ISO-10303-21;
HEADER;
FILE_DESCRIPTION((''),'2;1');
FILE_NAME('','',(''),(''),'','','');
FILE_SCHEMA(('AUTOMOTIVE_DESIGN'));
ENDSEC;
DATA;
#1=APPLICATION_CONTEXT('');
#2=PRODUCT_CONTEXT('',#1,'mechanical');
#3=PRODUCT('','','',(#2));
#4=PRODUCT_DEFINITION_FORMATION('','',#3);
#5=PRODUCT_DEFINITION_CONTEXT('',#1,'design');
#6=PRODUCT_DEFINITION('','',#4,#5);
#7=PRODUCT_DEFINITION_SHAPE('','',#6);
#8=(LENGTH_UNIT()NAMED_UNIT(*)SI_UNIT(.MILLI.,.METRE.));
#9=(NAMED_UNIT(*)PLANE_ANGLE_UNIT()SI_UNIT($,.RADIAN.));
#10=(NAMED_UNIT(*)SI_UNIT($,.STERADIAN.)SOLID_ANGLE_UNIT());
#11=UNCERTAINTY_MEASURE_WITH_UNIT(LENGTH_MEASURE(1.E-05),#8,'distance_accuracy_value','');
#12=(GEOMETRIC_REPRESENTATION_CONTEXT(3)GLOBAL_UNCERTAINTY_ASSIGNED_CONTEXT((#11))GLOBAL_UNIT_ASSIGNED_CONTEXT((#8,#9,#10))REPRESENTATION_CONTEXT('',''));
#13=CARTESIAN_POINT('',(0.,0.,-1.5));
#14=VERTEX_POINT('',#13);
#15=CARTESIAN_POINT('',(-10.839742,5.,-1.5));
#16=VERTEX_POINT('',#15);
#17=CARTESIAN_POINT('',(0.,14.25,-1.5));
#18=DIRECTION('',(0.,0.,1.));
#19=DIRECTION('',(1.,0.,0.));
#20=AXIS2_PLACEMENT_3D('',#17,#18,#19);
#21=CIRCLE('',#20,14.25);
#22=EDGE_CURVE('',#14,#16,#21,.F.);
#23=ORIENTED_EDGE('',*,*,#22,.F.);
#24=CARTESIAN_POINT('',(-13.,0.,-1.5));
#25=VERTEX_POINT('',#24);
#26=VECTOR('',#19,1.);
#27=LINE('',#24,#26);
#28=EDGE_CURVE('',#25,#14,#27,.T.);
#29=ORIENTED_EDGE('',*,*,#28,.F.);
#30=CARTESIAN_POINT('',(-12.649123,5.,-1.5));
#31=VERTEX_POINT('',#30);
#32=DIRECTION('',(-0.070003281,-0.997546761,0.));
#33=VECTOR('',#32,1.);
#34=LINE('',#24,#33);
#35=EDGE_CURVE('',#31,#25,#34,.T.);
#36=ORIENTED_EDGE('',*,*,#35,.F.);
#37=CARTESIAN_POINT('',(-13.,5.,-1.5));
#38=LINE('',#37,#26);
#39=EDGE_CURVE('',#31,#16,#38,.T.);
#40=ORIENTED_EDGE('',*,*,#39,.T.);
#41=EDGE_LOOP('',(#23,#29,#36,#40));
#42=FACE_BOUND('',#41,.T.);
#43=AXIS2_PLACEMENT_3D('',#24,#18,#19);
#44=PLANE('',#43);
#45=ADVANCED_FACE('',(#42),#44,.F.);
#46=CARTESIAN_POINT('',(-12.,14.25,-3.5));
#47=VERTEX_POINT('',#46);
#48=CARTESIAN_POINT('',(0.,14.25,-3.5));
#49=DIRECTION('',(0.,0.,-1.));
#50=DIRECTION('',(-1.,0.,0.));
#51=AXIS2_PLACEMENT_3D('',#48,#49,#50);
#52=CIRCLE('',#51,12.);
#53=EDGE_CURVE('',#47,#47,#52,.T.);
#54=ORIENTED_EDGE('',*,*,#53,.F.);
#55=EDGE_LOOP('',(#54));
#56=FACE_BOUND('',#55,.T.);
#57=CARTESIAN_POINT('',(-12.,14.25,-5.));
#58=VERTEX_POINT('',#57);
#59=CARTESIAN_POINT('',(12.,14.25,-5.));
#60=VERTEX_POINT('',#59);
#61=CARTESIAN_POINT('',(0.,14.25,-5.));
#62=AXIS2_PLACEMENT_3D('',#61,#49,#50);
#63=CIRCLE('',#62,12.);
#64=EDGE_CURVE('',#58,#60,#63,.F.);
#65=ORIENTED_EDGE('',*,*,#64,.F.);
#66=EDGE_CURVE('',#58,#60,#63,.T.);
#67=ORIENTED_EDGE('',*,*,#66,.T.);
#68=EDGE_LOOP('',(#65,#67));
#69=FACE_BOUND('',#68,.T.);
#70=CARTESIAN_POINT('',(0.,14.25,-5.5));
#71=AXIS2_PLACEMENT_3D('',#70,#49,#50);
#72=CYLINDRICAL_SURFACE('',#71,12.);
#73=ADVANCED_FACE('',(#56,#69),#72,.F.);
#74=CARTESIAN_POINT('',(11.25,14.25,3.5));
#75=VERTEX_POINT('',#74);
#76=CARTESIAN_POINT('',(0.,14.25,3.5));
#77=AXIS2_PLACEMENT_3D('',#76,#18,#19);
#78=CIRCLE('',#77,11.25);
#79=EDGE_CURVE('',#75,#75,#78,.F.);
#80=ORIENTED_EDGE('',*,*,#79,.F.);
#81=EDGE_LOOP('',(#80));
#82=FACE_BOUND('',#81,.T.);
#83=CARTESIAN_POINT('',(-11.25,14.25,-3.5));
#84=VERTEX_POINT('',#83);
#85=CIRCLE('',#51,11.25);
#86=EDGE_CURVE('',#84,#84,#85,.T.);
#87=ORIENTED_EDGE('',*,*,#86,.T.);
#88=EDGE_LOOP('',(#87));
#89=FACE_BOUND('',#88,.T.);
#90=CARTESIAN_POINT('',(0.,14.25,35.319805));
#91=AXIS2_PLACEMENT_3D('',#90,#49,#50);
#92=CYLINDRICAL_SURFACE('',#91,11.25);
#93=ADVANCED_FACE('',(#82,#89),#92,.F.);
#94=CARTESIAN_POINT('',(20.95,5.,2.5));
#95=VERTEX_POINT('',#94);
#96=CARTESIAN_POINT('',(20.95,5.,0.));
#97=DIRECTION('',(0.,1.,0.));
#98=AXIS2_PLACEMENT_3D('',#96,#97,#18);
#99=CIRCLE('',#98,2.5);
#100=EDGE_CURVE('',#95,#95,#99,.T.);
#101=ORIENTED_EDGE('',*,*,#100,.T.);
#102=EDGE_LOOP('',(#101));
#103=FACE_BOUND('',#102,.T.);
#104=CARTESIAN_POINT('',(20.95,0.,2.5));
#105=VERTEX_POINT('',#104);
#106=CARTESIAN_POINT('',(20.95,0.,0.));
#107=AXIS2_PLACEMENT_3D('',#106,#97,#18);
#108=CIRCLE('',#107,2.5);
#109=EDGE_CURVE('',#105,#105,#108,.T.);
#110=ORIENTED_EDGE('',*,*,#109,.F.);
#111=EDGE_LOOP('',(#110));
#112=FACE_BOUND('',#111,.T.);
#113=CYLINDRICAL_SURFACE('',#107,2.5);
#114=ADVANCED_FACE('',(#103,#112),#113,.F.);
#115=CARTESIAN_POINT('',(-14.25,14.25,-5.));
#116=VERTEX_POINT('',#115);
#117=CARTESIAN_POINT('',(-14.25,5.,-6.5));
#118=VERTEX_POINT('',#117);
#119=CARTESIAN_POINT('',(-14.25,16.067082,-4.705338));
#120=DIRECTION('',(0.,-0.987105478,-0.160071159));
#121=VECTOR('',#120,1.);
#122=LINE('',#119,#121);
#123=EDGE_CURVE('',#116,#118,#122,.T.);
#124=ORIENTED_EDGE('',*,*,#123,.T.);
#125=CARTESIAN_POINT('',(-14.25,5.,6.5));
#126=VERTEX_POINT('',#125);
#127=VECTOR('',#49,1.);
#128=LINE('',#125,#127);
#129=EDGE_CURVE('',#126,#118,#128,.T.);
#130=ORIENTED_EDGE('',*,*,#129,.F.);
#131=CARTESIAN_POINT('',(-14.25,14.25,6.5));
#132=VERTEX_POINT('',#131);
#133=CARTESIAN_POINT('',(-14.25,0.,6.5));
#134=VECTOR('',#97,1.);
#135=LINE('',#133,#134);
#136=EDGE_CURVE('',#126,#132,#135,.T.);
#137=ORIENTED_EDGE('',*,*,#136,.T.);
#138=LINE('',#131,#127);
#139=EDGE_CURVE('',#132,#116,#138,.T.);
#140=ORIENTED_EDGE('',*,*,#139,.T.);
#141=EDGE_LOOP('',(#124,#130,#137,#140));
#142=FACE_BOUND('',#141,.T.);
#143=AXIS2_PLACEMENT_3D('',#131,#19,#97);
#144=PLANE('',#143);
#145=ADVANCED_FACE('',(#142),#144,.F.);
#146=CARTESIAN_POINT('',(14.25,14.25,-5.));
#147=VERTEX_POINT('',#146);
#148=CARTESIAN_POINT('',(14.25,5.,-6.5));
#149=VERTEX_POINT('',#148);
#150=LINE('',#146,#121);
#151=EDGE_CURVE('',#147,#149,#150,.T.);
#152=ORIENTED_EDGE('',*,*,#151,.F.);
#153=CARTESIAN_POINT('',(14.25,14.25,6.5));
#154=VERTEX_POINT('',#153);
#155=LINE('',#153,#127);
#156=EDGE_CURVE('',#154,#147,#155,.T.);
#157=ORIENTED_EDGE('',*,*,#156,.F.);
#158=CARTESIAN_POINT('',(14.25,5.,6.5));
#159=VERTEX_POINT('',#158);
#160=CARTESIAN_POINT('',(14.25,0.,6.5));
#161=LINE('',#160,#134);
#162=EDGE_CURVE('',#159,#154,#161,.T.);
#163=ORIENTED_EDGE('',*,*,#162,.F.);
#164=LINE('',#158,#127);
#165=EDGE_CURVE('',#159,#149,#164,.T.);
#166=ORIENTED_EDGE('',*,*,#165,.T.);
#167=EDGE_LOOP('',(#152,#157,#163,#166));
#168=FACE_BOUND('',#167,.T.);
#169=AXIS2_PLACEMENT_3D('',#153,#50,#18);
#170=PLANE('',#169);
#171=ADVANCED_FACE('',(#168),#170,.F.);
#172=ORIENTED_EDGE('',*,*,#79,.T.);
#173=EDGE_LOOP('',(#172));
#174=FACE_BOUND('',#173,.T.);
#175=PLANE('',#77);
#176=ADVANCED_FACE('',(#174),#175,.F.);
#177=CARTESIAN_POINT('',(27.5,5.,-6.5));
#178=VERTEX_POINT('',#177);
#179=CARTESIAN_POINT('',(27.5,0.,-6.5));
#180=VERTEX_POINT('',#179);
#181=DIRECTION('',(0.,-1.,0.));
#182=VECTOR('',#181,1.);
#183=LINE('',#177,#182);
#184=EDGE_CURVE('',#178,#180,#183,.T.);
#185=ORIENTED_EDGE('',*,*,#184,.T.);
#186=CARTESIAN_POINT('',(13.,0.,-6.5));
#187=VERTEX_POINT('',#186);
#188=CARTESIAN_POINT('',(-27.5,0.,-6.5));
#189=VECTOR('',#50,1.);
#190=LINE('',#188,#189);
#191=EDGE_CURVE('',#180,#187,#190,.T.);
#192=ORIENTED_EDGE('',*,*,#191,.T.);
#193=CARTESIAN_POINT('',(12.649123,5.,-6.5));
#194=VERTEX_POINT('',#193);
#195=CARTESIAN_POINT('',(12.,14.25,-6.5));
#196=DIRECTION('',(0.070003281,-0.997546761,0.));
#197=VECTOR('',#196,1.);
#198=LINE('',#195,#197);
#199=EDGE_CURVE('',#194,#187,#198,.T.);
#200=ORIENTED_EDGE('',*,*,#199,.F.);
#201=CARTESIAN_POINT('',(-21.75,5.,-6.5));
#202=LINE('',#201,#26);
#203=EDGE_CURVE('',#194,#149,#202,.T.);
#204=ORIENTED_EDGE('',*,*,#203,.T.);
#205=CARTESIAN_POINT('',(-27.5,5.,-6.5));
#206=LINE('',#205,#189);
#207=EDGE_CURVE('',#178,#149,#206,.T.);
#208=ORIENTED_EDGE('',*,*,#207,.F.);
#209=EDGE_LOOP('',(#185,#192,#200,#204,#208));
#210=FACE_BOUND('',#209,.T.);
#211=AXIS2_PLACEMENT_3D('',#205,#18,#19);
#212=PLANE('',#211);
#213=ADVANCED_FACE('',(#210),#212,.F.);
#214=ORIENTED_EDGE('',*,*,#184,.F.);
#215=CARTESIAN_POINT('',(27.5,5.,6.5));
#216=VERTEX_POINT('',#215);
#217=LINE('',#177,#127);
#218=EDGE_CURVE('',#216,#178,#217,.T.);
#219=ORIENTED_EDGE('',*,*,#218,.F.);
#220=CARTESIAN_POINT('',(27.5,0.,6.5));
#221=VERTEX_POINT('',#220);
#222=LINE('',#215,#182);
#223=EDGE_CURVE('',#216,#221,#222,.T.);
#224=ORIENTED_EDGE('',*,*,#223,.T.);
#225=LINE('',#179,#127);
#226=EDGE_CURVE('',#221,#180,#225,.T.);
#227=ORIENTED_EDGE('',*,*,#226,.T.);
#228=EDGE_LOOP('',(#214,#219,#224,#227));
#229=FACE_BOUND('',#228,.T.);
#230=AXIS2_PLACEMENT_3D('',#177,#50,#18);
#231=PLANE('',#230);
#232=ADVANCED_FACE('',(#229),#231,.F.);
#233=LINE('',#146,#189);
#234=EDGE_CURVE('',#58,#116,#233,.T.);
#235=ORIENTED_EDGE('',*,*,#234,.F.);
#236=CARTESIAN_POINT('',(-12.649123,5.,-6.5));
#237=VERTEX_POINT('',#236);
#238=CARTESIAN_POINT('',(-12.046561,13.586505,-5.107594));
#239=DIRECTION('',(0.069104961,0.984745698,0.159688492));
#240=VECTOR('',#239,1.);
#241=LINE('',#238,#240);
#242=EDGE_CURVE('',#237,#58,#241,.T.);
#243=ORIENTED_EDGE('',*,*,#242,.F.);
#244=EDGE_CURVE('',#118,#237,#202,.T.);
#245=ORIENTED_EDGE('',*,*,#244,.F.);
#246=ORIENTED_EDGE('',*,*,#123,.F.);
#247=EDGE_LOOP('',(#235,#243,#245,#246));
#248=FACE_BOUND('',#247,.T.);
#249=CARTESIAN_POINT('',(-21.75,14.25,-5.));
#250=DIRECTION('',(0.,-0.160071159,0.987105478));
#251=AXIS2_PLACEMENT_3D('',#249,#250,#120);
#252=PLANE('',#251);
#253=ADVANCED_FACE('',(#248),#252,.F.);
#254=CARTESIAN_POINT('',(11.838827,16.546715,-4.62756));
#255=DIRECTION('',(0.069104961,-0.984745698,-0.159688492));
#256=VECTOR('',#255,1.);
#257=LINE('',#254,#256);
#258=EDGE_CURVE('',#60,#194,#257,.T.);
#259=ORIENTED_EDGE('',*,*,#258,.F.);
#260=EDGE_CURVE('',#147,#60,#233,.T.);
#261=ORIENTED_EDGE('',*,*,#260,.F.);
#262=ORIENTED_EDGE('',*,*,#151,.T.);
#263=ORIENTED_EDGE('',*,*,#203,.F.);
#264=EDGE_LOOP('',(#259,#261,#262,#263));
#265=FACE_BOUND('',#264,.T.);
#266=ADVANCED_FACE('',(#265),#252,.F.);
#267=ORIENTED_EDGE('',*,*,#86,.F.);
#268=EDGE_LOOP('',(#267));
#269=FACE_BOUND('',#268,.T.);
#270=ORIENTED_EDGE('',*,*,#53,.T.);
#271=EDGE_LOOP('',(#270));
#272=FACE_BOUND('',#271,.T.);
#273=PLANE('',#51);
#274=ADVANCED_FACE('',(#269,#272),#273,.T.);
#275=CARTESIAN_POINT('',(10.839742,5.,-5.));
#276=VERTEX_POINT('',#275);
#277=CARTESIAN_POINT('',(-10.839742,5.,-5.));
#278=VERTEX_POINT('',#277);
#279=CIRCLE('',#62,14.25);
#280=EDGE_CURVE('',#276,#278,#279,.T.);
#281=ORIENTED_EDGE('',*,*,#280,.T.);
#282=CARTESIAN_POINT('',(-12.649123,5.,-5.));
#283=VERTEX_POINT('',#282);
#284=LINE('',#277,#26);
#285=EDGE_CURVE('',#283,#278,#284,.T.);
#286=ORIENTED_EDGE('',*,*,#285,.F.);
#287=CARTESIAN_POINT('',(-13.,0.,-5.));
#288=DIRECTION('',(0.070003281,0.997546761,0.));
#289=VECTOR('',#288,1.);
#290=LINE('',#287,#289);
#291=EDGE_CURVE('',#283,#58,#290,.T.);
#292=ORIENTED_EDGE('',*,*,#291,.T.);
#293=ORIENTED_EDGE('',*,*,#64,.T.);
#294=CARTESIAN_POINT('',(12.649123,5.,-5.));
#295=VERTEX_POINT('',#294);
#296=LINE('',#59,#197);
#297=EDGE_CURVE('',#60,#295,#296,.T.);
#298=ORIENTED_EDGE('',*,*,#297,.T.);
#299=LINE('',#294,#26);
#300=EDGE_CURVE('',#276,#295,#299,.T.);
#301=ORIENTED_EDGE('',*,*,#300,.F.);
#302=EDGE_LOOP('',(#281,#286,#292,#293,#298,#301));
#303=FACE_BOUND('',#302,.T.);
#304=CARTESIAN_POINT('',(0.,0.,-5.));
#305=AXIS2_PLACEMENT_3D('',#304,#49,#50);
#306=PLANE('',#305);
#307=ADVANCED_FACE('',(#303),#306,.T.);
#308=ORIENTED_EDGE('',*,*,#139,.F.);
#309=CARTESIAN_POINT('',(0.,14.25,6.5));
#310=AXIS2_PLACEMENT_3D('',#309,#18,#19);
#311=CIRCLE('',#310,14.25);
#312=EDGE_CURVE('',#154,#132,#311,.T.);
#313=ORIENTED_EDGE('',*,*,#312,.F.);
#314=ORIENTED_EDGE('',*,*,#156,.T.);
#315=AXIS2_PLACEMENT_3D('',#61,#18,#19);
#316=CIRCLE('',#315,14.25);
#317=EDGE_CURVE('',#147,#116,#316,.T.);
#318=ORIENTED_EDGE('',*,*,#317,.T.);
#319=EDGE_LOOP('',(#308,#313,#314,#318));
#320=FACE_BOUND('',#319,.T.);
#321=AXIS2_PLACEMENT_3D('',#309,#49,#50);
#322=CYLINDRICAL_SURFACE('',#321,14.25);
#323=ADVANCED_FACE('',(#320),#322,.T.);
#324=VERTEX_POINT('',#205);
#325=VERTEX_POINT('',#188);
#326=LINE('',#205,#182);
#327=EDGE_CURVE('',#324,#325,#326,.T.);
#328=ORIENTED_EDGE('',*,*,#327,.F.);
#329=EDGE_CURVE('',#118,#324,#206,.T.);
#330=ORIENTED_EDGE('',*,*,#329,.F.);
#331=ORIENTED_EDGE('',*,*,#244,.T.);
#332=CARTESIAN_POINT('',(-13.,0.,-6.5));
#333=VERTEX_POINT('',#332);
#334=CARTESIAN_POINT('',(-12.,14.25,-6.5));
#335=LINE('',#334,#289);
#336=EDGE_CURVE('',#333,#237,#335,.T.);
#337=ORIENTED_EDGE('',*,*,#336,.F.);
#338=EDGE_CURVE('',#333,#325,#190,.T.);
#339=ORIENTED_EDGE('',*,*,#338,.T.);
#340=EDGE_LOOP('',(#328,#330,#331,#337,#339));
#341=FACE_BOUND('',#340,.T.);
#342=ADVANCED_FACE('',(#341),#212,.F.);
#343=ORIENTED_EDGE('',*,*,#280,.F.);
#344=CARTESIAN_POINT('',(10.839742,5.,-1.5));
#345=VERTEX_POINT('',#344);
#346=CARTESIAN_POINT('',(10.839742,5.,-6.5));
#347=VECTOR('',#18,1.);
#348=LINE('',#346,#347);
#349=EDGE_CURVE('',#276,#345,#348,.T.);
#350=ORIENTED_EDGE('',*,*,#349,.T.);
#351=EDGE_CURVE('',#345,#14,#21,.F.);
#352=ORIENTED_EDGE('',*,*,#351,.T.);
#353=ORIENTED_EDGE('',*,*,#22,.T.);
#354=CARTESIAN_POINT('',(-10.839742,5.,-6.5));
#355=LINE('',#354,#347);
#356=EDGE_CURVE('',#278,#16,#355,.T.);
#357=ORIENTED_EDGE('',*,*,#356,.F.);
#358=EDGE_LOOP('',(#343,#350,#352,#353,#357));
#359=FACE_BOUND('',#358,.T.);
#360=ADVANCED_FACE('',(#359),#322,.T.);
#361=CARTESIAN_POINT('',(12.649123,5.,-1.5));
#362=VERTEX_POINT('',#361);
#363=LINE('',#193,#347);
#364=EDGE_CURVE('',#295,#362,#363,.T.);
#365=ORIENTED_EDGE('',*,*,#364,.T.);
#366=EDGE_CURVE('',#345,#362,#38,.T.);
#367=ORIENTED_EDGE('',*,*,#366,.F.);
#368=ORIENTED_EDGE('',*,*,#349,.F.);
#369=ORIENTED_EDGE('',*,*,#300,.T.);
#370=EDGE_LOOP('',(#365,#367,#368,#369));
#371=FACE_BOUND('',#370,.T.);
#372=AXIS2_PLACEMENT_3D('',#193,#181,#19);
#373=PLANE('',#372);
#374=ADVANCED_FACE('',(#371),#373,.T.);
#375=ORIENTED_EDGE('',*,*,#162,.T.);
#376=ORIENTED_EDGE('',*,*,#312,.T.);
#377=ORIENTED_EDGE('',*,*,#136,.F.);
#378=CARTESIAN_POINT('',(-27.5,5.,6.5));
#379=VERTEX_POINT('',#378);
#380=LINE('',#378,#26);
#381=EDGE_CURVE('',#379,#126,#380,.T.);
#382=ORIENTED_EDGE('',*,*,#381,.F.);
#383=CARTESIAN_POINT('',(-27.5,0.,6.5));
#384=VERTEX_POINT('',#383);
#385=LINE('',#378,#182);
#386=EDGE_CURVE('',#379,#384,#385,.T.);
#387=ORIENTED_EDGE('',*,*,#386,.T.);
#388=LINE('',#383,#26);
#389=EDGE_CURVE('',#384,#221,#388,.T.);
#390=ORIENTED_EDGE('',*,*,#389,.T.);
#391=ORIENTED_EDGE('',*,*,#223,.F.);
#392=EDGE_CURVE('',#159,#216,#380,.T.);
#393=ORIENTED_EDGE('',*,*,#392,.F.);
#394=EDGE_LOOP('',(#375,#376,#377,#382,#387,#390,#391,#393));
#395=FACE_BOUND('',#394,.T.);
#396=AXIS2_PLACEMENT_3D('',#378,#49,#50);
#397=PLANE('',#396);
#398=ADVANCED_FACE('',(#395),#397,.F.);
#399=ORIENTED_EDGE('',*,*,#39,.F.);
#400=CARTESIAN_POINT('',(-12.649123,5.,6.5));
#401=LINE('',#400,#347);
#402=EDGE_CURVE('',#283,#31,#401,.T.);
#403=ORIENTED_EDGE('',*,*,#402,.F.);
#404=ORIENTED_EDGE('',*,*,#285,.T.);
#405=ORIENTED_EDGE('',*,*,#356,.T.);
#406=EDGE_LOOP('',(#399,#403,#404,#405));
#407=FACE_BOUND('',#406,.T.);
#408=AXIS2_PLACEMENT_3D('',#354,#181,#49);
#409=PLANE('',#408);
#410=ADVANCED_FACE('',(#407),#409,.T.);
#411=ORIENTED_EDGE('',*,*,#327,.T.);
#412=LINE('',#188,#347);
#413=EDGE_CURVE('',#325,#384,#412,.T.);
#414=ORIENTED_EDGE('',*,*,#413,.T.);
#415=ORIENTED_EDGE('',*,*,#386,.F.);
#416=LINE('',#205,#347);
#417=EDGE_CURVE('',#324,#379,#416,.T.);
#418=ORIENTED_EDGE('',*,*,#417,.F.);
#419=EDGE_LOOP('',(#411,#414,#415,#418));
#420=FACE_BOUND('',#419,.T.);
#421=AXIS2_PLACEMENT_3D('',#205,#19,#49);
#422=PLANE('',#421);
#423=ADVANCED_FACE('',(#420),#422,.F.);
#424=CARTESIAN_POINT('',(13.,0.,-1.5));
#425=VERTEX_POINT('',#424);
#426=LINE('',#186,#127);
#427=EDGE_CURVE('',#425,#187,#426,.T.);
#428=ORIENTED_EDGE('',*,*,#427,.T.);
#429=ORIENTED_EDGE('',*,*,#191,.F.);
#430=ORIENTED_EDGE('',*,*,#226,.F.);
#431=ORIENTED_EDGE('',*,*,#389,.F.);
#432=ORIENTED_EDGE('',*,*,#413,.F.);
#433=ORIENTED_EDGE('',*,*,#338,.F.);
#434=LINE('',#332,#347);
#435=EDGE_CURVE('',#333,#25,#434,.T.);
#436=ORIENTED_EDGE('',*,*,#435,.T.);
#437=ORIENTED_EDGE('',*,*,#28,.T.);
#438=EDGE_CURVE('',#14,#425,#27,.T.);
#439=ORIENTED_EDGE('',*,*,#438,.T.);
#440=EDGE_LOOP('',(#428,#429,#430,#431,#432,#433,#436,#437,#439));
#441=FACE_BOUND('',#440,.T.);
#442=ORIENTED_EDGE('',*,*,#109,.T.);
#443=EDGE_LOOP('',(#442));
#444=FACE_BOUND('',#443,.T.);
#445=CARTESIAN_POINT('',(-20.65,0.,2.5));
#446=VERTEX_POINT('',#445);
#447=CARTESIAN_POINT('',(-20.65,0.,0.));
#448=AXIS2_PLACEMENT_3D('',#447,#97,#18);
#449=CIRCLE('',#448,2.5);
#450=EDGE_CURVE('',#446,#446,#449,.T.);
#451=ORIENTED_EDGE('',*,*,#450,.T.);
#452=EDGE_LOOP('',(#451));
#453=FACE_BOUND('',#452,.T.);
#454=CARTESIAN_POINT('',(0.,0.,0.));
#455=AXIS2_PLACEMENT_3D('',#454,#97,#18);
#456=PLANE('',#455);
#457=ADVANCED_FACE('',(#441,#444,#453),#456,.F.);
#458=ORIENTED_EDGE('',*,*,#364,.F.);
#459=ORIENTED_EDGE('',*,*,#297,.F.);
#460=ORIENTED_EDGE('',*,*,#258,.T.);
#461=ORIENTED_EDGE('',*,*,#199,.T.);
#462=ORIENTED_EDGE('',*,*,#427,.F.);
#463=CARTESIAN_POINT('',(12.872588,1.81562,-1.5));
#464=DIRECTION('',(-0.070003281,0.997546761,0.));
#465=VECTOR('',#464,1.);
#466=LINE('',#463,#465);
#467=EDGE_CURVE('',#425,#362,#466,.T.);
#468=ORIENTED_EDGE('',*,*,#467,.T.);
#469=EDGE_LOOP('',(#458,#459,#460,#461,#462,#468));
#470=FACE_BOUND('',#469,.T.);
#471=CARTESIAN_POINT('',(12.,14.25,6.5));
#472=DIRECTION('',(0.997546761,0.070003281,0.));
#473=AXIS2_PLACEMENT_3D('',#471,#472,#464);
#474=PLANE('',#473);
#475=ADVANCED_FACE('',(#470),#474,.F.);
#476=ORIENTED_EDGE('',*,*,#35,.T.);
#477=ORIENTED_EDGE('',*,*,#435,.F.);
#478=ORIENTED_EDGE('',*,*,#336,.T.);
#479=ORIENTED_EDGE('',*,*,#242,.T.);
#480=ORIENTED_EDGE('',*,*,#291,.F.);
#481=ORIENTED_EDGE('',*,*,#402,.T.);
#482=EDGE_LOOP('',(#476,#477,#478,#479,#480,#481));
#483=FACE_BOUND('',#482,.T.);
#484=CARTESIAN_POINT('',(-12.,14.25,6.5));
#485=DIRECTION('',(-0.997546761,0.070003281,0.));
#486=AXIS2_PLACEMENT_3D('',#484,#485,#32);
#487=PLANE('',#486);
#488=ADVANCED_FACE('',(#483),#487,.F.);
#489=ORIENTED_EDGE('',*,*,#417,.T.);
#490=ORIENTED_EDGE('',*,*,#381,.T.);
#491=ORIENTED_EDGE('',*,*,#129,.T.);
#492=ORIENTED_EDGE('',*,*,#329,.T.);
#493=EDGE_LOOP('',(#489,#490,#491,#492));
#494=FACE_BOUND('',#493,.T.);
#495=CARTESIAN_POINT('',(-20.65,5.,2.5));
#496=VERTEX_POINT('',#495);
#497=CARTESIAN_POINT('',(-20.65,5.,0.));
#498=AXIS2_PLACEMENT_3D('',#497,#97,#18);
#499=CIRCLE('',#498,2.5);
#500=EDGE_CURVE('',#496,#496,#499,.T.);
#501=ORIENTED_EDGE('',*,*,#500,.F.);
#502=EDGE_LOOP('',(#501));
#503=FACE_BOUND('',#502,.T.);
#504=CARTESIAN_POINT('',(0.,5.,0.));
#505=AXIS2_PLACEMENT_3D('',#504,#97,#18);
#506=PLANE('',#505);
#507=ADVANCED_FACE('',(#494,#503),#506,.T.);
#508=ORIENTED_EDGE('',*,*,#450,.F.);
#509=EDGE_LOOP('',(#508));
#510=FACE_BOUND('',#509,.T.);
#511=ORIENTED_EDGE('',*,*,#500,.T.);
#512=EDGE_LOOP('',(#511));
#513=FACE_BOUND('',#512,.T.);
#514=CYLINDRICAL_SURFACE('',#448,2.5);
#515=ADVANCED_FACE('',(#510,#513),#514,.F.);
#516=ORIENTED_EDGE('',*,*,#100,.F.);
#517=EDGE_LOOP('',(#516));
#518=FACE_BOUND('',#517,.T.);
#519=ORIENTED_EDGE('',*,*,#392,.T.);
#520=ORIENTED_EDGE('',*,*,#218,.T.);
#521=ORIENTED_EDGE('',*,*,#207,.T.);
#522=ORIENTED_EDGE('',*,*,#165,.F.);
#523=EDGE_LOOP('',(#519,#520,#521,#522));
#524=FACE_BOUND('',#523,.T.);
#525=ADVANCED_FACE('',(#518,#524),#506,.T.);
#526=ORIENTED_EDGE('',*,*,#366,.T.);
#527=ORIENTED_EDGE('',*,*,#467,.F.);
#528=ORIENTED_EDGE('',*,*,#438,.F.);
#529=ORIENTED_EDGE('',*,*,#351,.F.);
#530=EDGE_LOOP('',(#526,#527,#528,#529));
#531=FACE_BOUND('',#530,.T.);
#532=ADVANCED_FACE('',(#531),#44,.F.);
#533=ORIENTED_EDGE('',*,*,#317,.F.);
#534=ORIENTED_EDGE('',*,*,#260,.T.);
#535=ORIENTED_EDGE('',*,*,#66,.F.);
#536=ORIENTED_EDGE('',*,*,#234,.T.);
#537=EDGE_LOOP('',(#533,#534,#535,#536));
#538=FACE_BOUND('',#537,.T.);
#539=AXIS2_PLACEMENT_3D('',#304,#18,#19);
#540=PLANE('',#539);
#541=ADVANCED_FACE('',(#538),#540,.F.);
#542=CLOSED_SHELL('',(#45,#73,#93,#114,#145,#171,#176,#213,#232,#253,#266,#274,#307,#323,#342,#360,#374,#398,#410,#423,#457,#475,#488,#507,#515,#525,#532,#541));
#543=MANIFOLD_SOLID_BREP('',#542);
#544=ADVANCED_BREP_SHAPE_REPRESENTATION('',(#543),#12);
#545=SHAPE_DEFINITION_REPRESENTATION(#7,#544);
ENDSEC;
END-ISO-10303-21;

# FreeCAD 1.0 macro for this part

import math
import FreeCAD as App
import Part
import Sketcher

V = App.Vector

doc = App.newDocument("Part")
body = doc.addObject("PartDesign::Body", "Body")

# Sketch on XZ plane
sketch1 = body.newObject("Sketcher::SketchObject", "Sketch")
sketch1.AttachmentSupport = (doc.getObject("XZ_Plane"), [""])
sketch1.MapMode = "FlatFace"
sketch1.addGeometry([
    Part.LineSegment(V(-27.5, -6.5, 0), V(-27.5, 6.5, 0)),
    Part.LineSegment(V(-27.5, 6.5, 0), V(27.5, 6.5, 0)),
    Part.LineSegment(V(27.5, 6.5, 0), V(27.5, -6.5, 0)),
    Part.LineSegment(V(27.5, -6.5, 0), V(-27.5, -6.5, 0)),
], False)
sketch1.addConstraint([
    Sketcher.Constraint("Coincident", 0, 2, 1, 1),
    Sketcher.Constraint("Coincident", 1, 2, 2, 1),
    Sketcher.Constraint("Coincident", 2, 2, 3, 1),
    Sketcher.Constraint("Coincident", 3, 2, 0, 1),
    Sketcher.Constraint("Vertical", 0),
    Sketcher.Constraint("Horizontal", 1),
    Sketcher.Constraint("Vertical", 2),
    Sketcher.Constraint("Horizontal", 3),
    Sketcher.Constraint("Symmetric", 0, 2, 2, 2, -1, 1),
    Sketcher.Constraint("DistanceX", 1, 1, 1, 2, 55.0),
    Sketcher.Constraint("DistanceY", 0, 1, 0, 2, 13.0),
])
pad1 = body.newObject("PartDesign::Pad", "Pad")
pad1.Profile = sketch1
pad1.Length = 5
pad1.Reversed = True

# Sketch on XZ plane
sketch2 = body.newObject("Sketcher::SketchObject", "Sketch001")
sketch2.AttachmentSupport = (doc.getObject("XZ_Plane"), [""])
sketch2.MapMode = "FlatFace"
sketch2.AttachmentOffset = App.Placement(V(0, 0, -5), App.Rotation())
sketch2.addGeometry([
    Part.Circle(V(-20.65, 0, 0), V(0, 0, 1), 2.5),
    Part.Circle(V(20.95, 0, 0), V(0, 0, 1), 2.5),
], False)
sketch2.addConstraint([
    Sketcher.Constraint("Equal", 0, 1),
    Sketcher.Constraint("PointOnObject", 0, 3, -1),
    Sketcher.Constraint("PointOnObject", 1, 3, -1),
    Sketcher.Constraint("Diameter", 0, 5.0),
    Sketcher.Constraint("DistanceX", 0, 3, 1, 3, 41.6),
    Sketcher.Constraint("DistanceX", 0, 3, -1, 1, 20.65),
])
pocket1 = body.newObject("PartDesign::Pocket", "Pocket")
pocket1.Profile = sketch2
pocket1.Length = 5
pocket1.Reversed = True

# Sketch on XZ plane
sketch3 = body.newObject("Sketcher::SketchObject", "Sketch002")
sketch3.AttachmentSupport = (doc.getObject("XZ_Plane"), [""])
sketch3.MapMode = "FlatFace"
sketch3.AttachmentOffset = App.Placement(V(0, 0, -5), App.Rotation())
sketch3.addGeometry([
    Part.LineSegment(V(-13, -6.5, 0), V(-13, -1.5, 0)),  # 0
    Part.LineSegment(V(-13, -1.5, 0), V(13, -1.5, 0)),  # 1
    Part.LineSegment(V(13, -1.5, 0), V(13, -6.5, 0)),  # 2
    Part.LineSegment(V(13, -6.5, 0), V(-13, -6.5, 0)),  # 3
    Part.LineSegment(V(-13, 1.5, 0), V(-13, 6.5, 0)),  # 4
    Part.LineSegment(V(-13, 6.5, 0), V(13, 6.5, 0)),  # 5
    Part.LineSegment(V(13, 6.5, 0), V(13, 1.5, 0)),  # 6
    Part.LineSegment(V(13, 1.5, 0), V(-13, 1.5, 0)),  # 7
], False)
sketch3.addConstraint([
    Sketcher.Constraint("Coincident", 0, 2, 1, 1),
    Sketcher.Constraint("Coincident", 1, 2, 2, 1),
    Sketcher.Constraint("Coincident", 2, 2, 3, 1),
    Sketcher.Constraint("Coincident", 3, 2, 0, 1),
    Sketcher.Constraint("Coincident", 4, 2, 5, 1),
    Sketcher.Constraint("Coincident", 5, 2, 6, 1),
    Sketcher.Constraint("Coincident", 6, 2, 7, 1),
    Sketcher.Constraint("Coincident", 7, 2, 4, 1),
    Sketcher.Constraint("Vertical", 0),
    Sketcher.Constraint("Horizontal", 1),
    Sketcher.Constraint("Vertical", 2),
    Sketcher.Constraint("Horizontal", 3),
    Sketcher.Constraint("Vertical", 4),
    Sketcher.Constraint("Horizontal", 5),
    Sketcher.Constraint("Vertical", 6),
    Sketcher.Constraint("Horizontal", 7),
    Sketcher.Constraint("Symmetric", 2, 2, 4, 2, -1, 1),
    Sketcher.Constraint("Symmetric", 0, 2, 6, 2, -1, 1),
    Sketcher.Constraint("Vertical", 3, 2, 4, 2),
    Sketcher.Constraint("DistanceX", 1, 1, 1, 2, 26.0),
    Sketcher.Constraint("DistanceY", 0, 1, 0, 2, 5.0),
    Sketcher.Constraint("DistanceY", 0, 2, 4, 2, 8.0),
])
pocket2 = body.newObject("PartDesign::Pocket", "Pocket001")
pocket2.Profile = sketch3
pocket2.Length = 5
pocket2.Reversed = True

# Sketch on XY plane
sketch4 = body.newObject("Sketcher::SketchObject", "Sketch003")
sketch4.AttachmentSupport = (doc.getObject("XY_Plane"), [""])
sketch4.MapMode = "FlatFace"
sketch4.AttachmentOffset = App.Placement(V(0, 0, 1.5), App.Rotation())
sketch4.addGeometry(Part.Circle(V(0, 14.25, 0), V(0, 0, 1), 14.25), False)
sketch4.addConstraint([
    Sketcher.Constraint("PointOnObject", 0, 3, -2),
    Sketcher.Constraint("Diameter", 0, 28.5),
    Sketcher.Constraint("DistanceY", -1, 1, 0, 3, 14.25),
])
pad2 = body.newObject("PartDesign::Pad", "Pad001")
pad2.Profile = sketch4
pad2.Type = "TwoLengths"
pad2.Length = 5
pad2.Length2 = 8

# Sketch on XY plane
sketch5 = body.newObject("Sketcher::SketchObject", "Sketch004")
sketch5.AttachmentSupport = (doc.getObject("XY_Plane"), [""])
sketch5.MapMode = "FlatFace"
sketch5.AttachmentOffset = App.Placement(V(0, 0, -6.5), App.Rotation())
sketch5.addGeometry(Part.Circle(V(0, 14.25, 0), V(0, 0, 1), 12), False)
sketch5.addConstraint([
    Sketcher.Constraint("PointOnObject", 0, 3, -2),
    Sketcher.Constraint("Diameter", 0, 24.0),
    Sketcher.Constraint("DistanceY", -1, 1, 0, 3, 14.25),
])
pocket3 = body.newObject("PartDesign::Pocket", "Pocket002")
pocket3.Profile = sketch5
pocket3.Length = 1
pocket3.Reversed = True

# Sketch on XY plane
sketch6 = body.newObject("Sketcher::SketchObject", "Sketch005")
sketch6.AttachmentSupport = (doc.getObject("XY_Plane"), [""])
sketch6.MapMode = "FlatFace"
sketch6.AttachmentOffset = App.Placement(V(0, 0, 5.5), App.Rotation())
sketch6.addGeometry(Part.Circle(V(0, 14.25, 0), V(0, 0, 1), 12), False)
sketch6.addConstraint([
    Sketcher.Constraint("PointOnObject", 0, 3, -2),
    Sketcher.Constraint("Diameter", 0, 24.0),
    Sketcher.Constraint("DistanceY", -1, 1, 0, 3, 14.25),
])
pocket4 = body.newObject("PartDesign::Pocket", "Pocket003")
pocket4.Profile = sketch6
pocket4.Length = 1
pocket4.Reversed = True

# Sketch on XY plane
sketch7 = body.newObject("Sketcher::SketchObject", "Sketch006")
sketch7.AttachmentSupport = (doc.getObject("XY_Plane"), [""])
sketch7.MapMode = "FlatFace"
sketch7.AttachmentOffset = App.Placement(V(0, 0, 5.5), App.Rotation())
sketch7.addGeometry([
    Part.LineSegment(V(-13, 0, 0), V(-12, 14.25, 0)),  # 0
    Part.LineSegment(V(-12, 14.25, 0), V(-14.25, 14.25, 0)),  # 1
    Part.LineSegment(V(-14.25, 14.25, 0), V(-14.25, 5, 0)),  # 2
    Part.LineSegment(V(-14.25, 5, 0), V(-13, 0, 0)),  # 3
    Part.LineSegment(V(12, 14.25, 0), V(13, 0, 0)),  # 4
    Part.LineSegment(V(13, 0, 0), V(14.25, 5, 0)),  # 5
    Part.LineSegment(V(14.25, 5, 0), V(14.25, 14.25, 0)),  # 6
    Part.LineSegment(V(14.25, 14.25, 0), V(12, 14.25, 0)),  # 7
], False)
sketch7.addConstraint([
    Sketcher.Constraint("Coincident", 0, 2, 1, 1),
    Sketcher.Constraint("Coincident", 1, 2, 2, 1),
    Sketcher.Constraint("Coincident", 2, 2, 3, 1),
    Sketcher.Constraint("Coincident", 3, 2, 0, 1),
    Sketcher.Constraint("Coincident", 4, 2, 5, 1),
    Sketcher.Constraint("Coincident", 5, 2, 6, 1),
    Sketcher.Constraint("Coincident", 6, 2, 7, 1),
    Sketcher.Constraint("Coincident", 7, 2, 4, 1),
    Sketcher.Constraint("Horizontal", 1),
    Sketcher.Constraint("Vertical", 2),
    Sketcher.Constraint("Vertical", 6),
    Sketcher.Constraint("Horizontal", 7),
    Sketcher.Constraint("Symmetric", 3, 2, 4, 2, -1, 1),
    Sketcher.Constraint("Symmetric", 2, 2, 5, 2, -2),
    Sketcher.Constraint("Symmetric", 0, 2, 7, 2, -2),
    Sketcher.Constraint("PointOnObject", 3, 2, -1),
    Sketcher.Constraint("DistanceX", 0, 2, -1, 1, 12.0),
    Sketcher.Constraint("DistanceY", -1, 1, 2, 2, 5.0),
    Sketcher.Constraint("DistanceX", 3, 2, -1, 1, 13.0),
    Sketcher.Constraint("DistanceX", 1, 2, 1, 1, 2.25),
    Sketcher.Constraint("DistanceY", 2, 2, 2, 1, 9.25),
])
pad3 = body.newObject("PartDesign::Pad", "Pad002")
pad3.Profile = sketch7
pad3.Type = "TwoLengths"
pad3.Length = 1
pad3.Length2 = 12

# Sketch on XY plane
sketch8 = body.newObject("Sketcher::SketchObject", "Sketch007")
sketch8.AttachmentSupport = (doc.getObject("XY_Plane"), [""])
sketch8.MapMode = "FlatFace"
sketch8.AttachmentOffset = App.Placement(V(0, 0, 6.5), App.Rotation())
sketch8.addGeometry([
    Part.LineSegment(V(-13.183688, 5, 0), V(-10.839742, 5, 0)),  # 0
    Part.LineSegment(V(-10.839742, 5, 0), V(-12.649123, 8.463154, 0)),  # 1
    Part.LineSegment(V(-12.649123, 8.463154, 0), V(-13.183688, 5, 0)),  # 2
    Part.LineSegment(V(12.649123, 5, 0), V(12.728524, 8.463154, 0)),  # 3
    Part.LineSegment(V(12.728524, 8.463154, 0), V(10.839742, 5, 0)),  # 4
    Part.LineSegment(V(10.839742, 5, 0), V(12.649123, 5, 0)),  # 5
], False)
sketch8.addConstraint([
    Sketcher.Constraint("Coincident", 0, 2, 1, 1),
    Sketcher.Constraint("Coincident", 1, 2, 2, 1),
    Sketcher.Constraint("Coincident", 2, 2, 0, 1),
    Sketcher.Constraint("Coincident", 3, 2, 4, 1),
    Sketcher.Constraint("Coincident", 4, 2, 5, 1),
    Sketcher.Constraint("Coincident", 5, 2, 3, 1),
    Sketcher.Constraint("Horizontal", 0),
    Sketcher.Constraint("Horizontal", 5),
    Sketcher.Constraint("Symmetric", 0, 2, 4, 2, -2),
    Sketcher.Constraint("Horizontal", 1, 2, 3, 2),
    Sketcher.Constraint("DistanceY", -1, 1, 0, 2, 5.0),
    Sketcher.Constraint("DistanceX", 5, 1, 5, 2, 1.809381),
    Sketcher.Constraint("DistanceX", 5, 2, 3, 2, 0.079401),
    Sketcher.Constraint("Distance", 1, 3.907339),
    Sketcher.Constraint("Distance", 2, 3.504168),
    Sketcher.Constraint("DistanceX", 0, 1, 0, 2, 2.343946),
    Sketcher.Constraint("DistanceX", 0, 2, -1, 1, 10.839742),
])
pad4 = body.newObject("PartDesign::Pad", "Pad003")
pad4.Profile = sketch8
pad4.Length = 13
pad4.Reversed = True

# Sketch on XY plane
sketch9 = body.newObject("Sketcher::SketchObject", "Sketch008")
sketch9.AttachmentSupport = (doc.getObject("XY_Plane"), [""])
sketch9.MapMode = "FlatFace"
sketch9.AttachmentOffset = App.Placement(V(0, 0, 5.5), App.Rotation())
sketch9.addGeometry(Part.Circle(V(0, 14.25, 0), V(0, 0, 1), 11), False)
sketch9.addConstraint([
    Sketcher.Constraint("PointOnObject", 0, 3, -2),
    Sketcher.Constraint("Diameter", 0, 22.0),
    Sketcher.Constraint("DistanceY", -1, 1, 0, 3, 14.25),
])
pocket5 = body.newObject("PartDesign::Pocket", "Pocket004")
pocket5.Profile = sketch9
pocket5.Length = 13

# Sketch on XY plane
sketch10 = body.newObject("Sketcher::SketchObject", "Sketch009")
sketch10.AttachmentSupport = (doc.getObject("XY_Plane"), [""])
sketch10.MapMode = "FlatFace"
sketch10.AttachmentOffset = App.Placement(V(0, 0, -6.5), App.Rotation())
sketch10.addGeometry([
    Part.LineSegment(V(14.25, 31.975009, 0), V(14.25, 14.25, 0)),
    Part.LineSegment(V(14.25, 14.25, 0), V(-16.304628, 14.25, 0)),
    Part.LineSegment(V(-16.304628, 14.25, 0), V(-16.304628, 31.975009, 0)),
    Part.LineSegment(V(-16.304628, 31.975009, 0), V(14.25, 31.975009, 0)),
], False)
sketch10.addConstraint([
    Sketcher.Constraint("Coincident", 0, 2, 1, 1),
    Sketcher.Constraint("Coincident", 1, 2, 2, 1),
    Sketcher.Constraint("Coincident", 2, 2, 3, 1),
    Sketcher.Constraint("Coincident", 3, 2, 0, 1),
    Sketcher.Constraint("Vertical", 0),
    Sketcher.Constraint("Horizontal", 1),
    Sketcher.Constraint("Vertical", 2),
    Sketcher.Constraint("Horizontal", 3),
    Sketcher.Constraint("DistanceX", -1, 1, 0, 2, 14.25),
    Sketcher.Constraint("DistanceY", -1, 1, 0, 2, 14.25),
    Sketcher.Constraint("DistanceY", 0, 2, 0, 1, 17.725009),
    Sketcher.Constraint("DistanceX", 1, 2, 1, 1, 30.554628),
])
pocket6 = body.newObject("PartDesign::Pocket", "Pocket005")
pocket6.Profile = sketch10
pocket6.Length = 1.5
pocket6.Reversed = True

# Sketch on XY plane
sketch11 = body.newObject("Sketcher::SketchObject", "Sketch010")
sketch11.AttachmentSupport = (doc.getObject("XY_Plane"), [""])
sketch11.MapMode = "FlatFace"
sketch11.AttachmentOffset = App.Placement(V(0, 0, 6.5), App.Rotation())
sketch11.addGeometry([
    Part.LineSegment(V(-17.377471, 32.810834, 0), V(-17.377471, 14.25, 0)),
    Part.LineSegment(V(-17.377471, 14.25, 0), V(14.25, 14.25, 0)),
    Part.LineSegment(V(14.25, 14.25, 0), V(14.25, 32.810834, 0)),
    Part.LineSegment(V(14.25, 32.810834, 0), V(-17.377471, 32.810834, 0)),
], False)
sketch11.addConstraint([
    Sketcher.Constraint("Coincident", 0, 2, 1, 1),
    Sketcher.Constraint("Coincident", 1, 2, 2, 1),
    Sketcher.Constraint("Coincident", 2, 2, 3, 1),
    Sketcher.Constraint("Coincident", 3, 2, 0, 1),
    Sketcher.Constraint("Vertical", 0),
    Sketcher.Constraint("Horizontal", 1),
    Sketcher.Constraint("Vertical", 2),
    Sketcher.Constraint("Horizontal", 3),
    Sketcher.Constraint("DistanceY", -1, 1, 0, 2, 14.25),
    Sketcher.Constraint("DistanceX", -1, 1, 1, 2, 14.25),
    Sketcher.Constraint("DistanceX", 1, 1, 1, 2, 31.627471),
    Sketcher.Constraint("DistanceY", 0, 2, 0, 1, 18.560834),
])
pocket7 = body.newObject("PartDesign::Pocket", "Pocket006")
pocket7.Profile = sketch11
pocket7.Length = 1.5

# Sketch on XY plane
sketch12 = body.newObject("Sketcher::SketchObject", "Sketch011")
sketch12.AttachmentSupport = (doc.getObject("XY_Plane"), [""])
sketch12.MapMode = "FlatFace"
sketch12.AttachmentOffset = App.Placement(V(0, 0, 3.5), App.Rotation())
sketch12.addGeometry(Part.Circle(V(0, 14.25, 0), V(0, 0, 1), 12), False)
sketch12.addConstraint([
    Sketcher.Constraint("PointOnObject", 0, 3, -2),
    Sketcher.Constraint("Diameter", 0, 24.0),
    Sketcher.Constraint("DistanceY", -1, 1, 0, 3, 14.25),
])
pocket8 = body.newObject("PartDesign::Pocket", "Pocket007")
pocket8.Profile = sketch12
pocket8.Length = 1.5
pocket8.Reversed = True

# Sketch on XY plane
sketch13 = body.newObject("Sketcher::SketchObject", "Sketch012")
sketch13.AttachmentSupport = (doc.getObject("XY_Plane"), [""])
sketch13.MapMode = "FlatFace"
sketch13.AttachmentOffset = App.Placement(V(0, 0, -5), App.Rotation())
sketch13.addGeometry(Part.Circle(V(0, 14.25, 0), V(0, 0, 1), 12), False)
sketch13.addConstraint([
    Sketcher.Constraint("PointOnObject", 0, 3, -2),
    Sketcher.Constraint("Diameter", 0, 24.0),
    Sketcher.Constraint("DistanceY", -1, 1, 0, 3, 14.25),
])
pocket9 = body.newObject("PartDesign::Pocket", "Pocket008")
pocket9.Profile = sketch13
pocket9.Length = 1.5
pocket9.Reversed = True

# Sketch on XY plane
sketch14 = body.newObject("Sketcher::SketchObject", "Sketch013")
sketch14.AttachmentSupport = (doc.getObject("XY_Plane"), [""])
sketch14.MapMode = "FlatFace"
sketch14.AttachmentOffset = App.Placement(V(0, 0, -8.5), App.Rotation())
sketch14.addGeometry(Part.Circle(V(0, 14.25, 0), V(0, 0, 1), 12), False)
sketch14.addConstraint([
    Sketcher.Constraint("PointOnObject", 0, 3, -2),
    Sketcher.Constraint("Diameter", 0, 24.0),
    Sketcher.Constraint("DistanceY", -1, 1, 0, 3, 14.25),
])
pocket10 = body.newObject("PartDesign::Pocket", "Pocket009")
pocket10.Profile = sketch14
pocket10.Length = 5
pocket10.Reversed = True

# Sketch on XY plane
sketch15 = body.newObject("Sketcher::SketchObject", "Sketch014")
sketch15.AttachmentSupport = (doc.getObject("XY_Plane"), [""])
sketch15.MapMode = "FlatFace"
sketch15.AttachmentOffset = App.Placement(V(0, 0, 3.5), App.Rotation())
sketch15.addGeometry(Part.Circle(V(0, 14.25, 0), V(0, 0, 1), 12), False)
sketch15.addConstraint([
    Sketcher.Constraint("PointOnObject", 0, 3, -2),
    Sketcher.Constraint("Diameter", 0, 24.0),
    Sketcher.Constraint("DistanceY", -1, 1, 0, 3, 14.25),
])
pocket11 = body.newObject("PartDesign::Pocket", "Pocket010")
pocket11.Profile = sketch15
pocket11.Length = 5
pocket11.Reversed = True

# Sketch on XY plane
sketch16 = body.newObject("Sketcher::SketchObject", "Sketch015")
sketch16.AttachmentSupport = (doc.getObject("XY_Plane"), [""])
sketch16.MapMode = "FlatFace"
sketch16.AttachmentOffset = App.Placement(V(0, 0, 5), App.Rotation())
sketch16.addGeometry([
    Part.LineSegment(V(-12, 14.25, 0), V(-13, 0, 0)),
    Part.LineSegment(V(-13, 0, 0), V(13, 0, 0)),
    Part.LineSegment(V(13, 0, 0), V(12, 14.25, 0)),
    Part.LineSegment(V(12, 14.25, 0), V(-12, 14.25, 0)),
], False)
sketch16.addConstraint([
    Sketcher.Constraint("Coincident", 0, 2, 1, 1),
    Sketcher.Constraint("Coincident", 1, 2, 2, 1),
    Sketcher.Constraint("Coincident", 2, 2, 3, 1),
    Sketcher.Constraint("Coincident", 3, 2, 0, 1),
    Sketcher.Constraint("Horizontal", 1),
    Sketcher.Constraint("Horizontal", 3),
    Sketcher.Constraint("Symmetric", 0, 2, 1, 2, -1, 1),
    Sketcher.Constraint("Equal", 0, 2),
    Sketcher.Constraint("DistanceX", 1, 1, 1, 2, 26.0),
    Sketcher.Constraint("DistanceX", 3, 2, 3, 1, 24.0),
    Sketcher.Constraint("DistanceY", -1, 1, 2, 2, 14.25),
])
pocket12 = body.newObject("PartDesign::Pocket", "Pocket011")
pocket12.Profile = sketch16
pocket12.Length = 20
pocket12.Reversed = True

# Sketch on YZ plane
sketch17 = body.newObject("Sketcher::SketchObject", "Sketch016")
sketch17.AttachmentSupport = (doc.getObject("YZ_Plane"), [""])
sketch17.MapMode = "FlatFace"
sketch17.AttachmentOffset = App.Placement(V(0, 0, -14.25), App.Rotation())
sketch17.addGeometry([
    Part.LineSegment(V(14.25, 5, 0), V(5, 6.5, 0)),
    Part.LineSegment(V(5, 6.5, 0), V(14.25, 6.5, 0)),
    Part.LineSegment(V(14.25, 6.5, 0), V(14.25, 5, 0)),
], False)
sketch17.addConstraint([
    Sketcher.Constraint("Coincident", 0, 2, 1, 1),
    Sketcher.Constraint("Coincident", 1, 2, 2, 1),
    Sketcher.Constraint("Coincident", 2, 2, 0, 1),
    Sketcher.Constraint("Horizontal", 1),
    Sketcher.Constraint("Vertical", 2),
    Sketcher.Constraint("DistanceY", 2, 2, 2, 1, 1.5),
    Sketcher.Constraint("DistanceX", -1, 1, 0, 2, 5.0),
    Sketcher.Constraint("DistanceY", -1, 1, 2, 2, 5.0),
    Sketcher.Constraint("DistanceX", 1, 1, 1, 2, 9.25),
])
pocket13 = body.newObject("PartDesign::Pocket", "Pocket012")
pocket13.Profile = sketch17
pocket13.Length = 36
pocket13.Reversed = True

# Sketch on YZ plane
sketch18 = body.newObject("Sketcher::SketchObject", "Sketch017")
sketch18.AttachmentSupport = (doc.getObject("YZ_Plane"), [""])
sketch18.MapMode = "FlatFace"
sketch18.AttachmentOffset = App.Placement(V(0, 0, 14.25), App.Rotation())
sketch18.addGeometry([
    Part.LineSegment(V(14.25, -5, 0), V(5, -6.5, 0)),
    Part.LineSegment(V(5, -6.5, 0), V(14.25, -6.5, 0)),
    Part.LineSegment(V(14.25, -6.5, 0), V(14.25, -5, 0)),
], False)
sketch18.addConstraint([
    Sketcher.Constraint("Coincident", 0, 2, 1, 1),
    Sketcher.Constraint("Coincident", 1, 2, 2, 1),
    Sketcher.Constraint("Coincident", 2, 2, 0, 1),
    Sketcher.Constraint("Horizontal", 1),
    Sketcher.Constraint("Vertical", 2),
    Sketcher.Constraint("DistanceY", 2, 1, 2, 2, 1.5),
    Sketcher.Constraint("DistanceX", -1, 1, 0, 2, 5.0),
    Sketcher.Constraint("DistanceY", 2, 2, -1, 1, 5.0),
    Sketcher.Constraint("DistanceX", 1, 1, 1, 2, 9.25),
])
pocket14 = body.newObject("PartDesign::Pocket", "Pocket013")
pocket14.Profile = sketch18
pocket14.Length = 36

# Sketch on XY plane
sketch19 = body.newObject("Sketcher::SketchObject", "Sketch018")
sketch19.AttachmentSupport = (doc.getObject("XY_Plane"), [""])
sketch19.MapMode = "FlatFace"
sketch19.AttachmentOffset = App.Placement(V(0, 0, -5), App.Rotation())
sketch19.addGeometry([
    Part.LineSegment(V(12, 14.25, 0), V(13, 0, 0)),
    Part.LineSegment(V(13, 0, 0), V(-13, 0, 0)),
    Part.LineSegment(V(-13, 0, 0), V(-12, 14.25, 0)),
    Part.LineSegment(V(-12, 14.25, 0), V(12, 14.25, 0)),
], False)
sketch19.addConstraint([
    Sketcher.Constraint("Coincident", 0, 2, 1, 1),
    Sketcher.Constraint("Coincident", 1, 2, 2, 1),
    Sketcher.Constraint("Coincident", 2, 2, 3, 1),
    Sketcher.Constraint("Coincident", 3, 2, 0, 1),
    Sketcher.Constraint("Horizontal", 1),
    Sketcher.Constraint("Horizontal", 3),
    Sketcher.Constraint("Symmetric", 0, 2, 1, 2, -1, 1),
    Sketcher.Constraint("Equal", 0, 2),
    Sketcher.Constraint("DistanceX", 1, 2, 1, 1, 26.0),
    Sketcher.Constraint("DistanceX", 3, 1, 3, 2, 24.0),
    Sketcher.Constraint("DistanceY", -1, 1, 2, 2, 14.25),
])
pocket15 = body.newObject("PartDesign::Pocket", "Pocket014")
pocket15.Profile = sketch19
pocket15.Length = 23

# Sketch on XY plane
sketch20 = body.newObject("Sketcher::SketchObject", "Sketch019")
sketch20.AttachmentSupport = (doc.getObject("XY_Plane"), [""])
sketch20.MapMode = "FlatFace"
sketch20.AttachmentOffset = App.Placement(V(0, 0, 3.5), App.Rotation())
sketch20.addGeometry(Part.Circle(V(0, 14.25, 0), V(0, 0, 1), 12), False)
sketch20.addConstraint([
    Sketcher.Constraint("PointOnObject", 0, 3, -2),
    Sketcher.Constraint("Diameter", 0, 24.0),
    Sketcher.Constraint("DistanceY", -1, 1, 0, 3, 14.25),
])
pad5 = body.newObject("PartDesign::Pad", "Pad004")
pad5.Profile = sketch20
pad5.Length = 1.5

# Sketch on XY plane
sketch21 = body.newObject("Sketcher::SketchObject", "Sketch020")
sketch21.AttachmentSupport = (doc.getObject("XY_Plane"), [""])
sketch21.MapMode = "FlatFace"
sketch21.AttachmentOffset = App.Placement(V(0, 0, 5), App.Rotation())
sketch21.addGeometry(Part.Circle(V(0, 14.25, 0), V(0, 0, 1), 14.25), False)
sketch21.addConstraint([
    Sketcher.Constraint("PointOnObject", 0, 3, -2),
    Sketcher.Constraint("Diameter", 0, 28.5),
    Sketcher.Constraint("DistanceY", -1, 1, 0, 3, 14.25),
])
pad6 = body.newObject("PartDesign::Pad", "Pad005")
pad6.Profile = sketch21
pad6.Length = 1.5

# Sketch on XY plane
sketch22 = body.newObject("Sketcher::SketchObject", "Sketch021")
sketch22.AttachmentSupport = (doc.getObject("XY_Plane"), [""])
sketch22.MapMode = "FlatFace"
sketch22.AttachmentOffset = App.Placement(V(0, 0, 1.5), App.Rotation())
sketch22.addGeometry([
    Part.LineSegment(V(-10.839742, 5, 0), V(-12.649123, 5, 0)),
    Part.LineSegment(V(-12.649123, 5, 0), V(-13, 0, 0)),
    Part.LineSegment(V(-13, 0, 0), V(0, 0, 0)),
    Part.ArcOfCircle(Part.Circle(V(0, 14.25, 0), V(0, 0, 1), 14.25), math.radians(-139.524502), math.radians(-90)),
], False)
sketch22.addConstraint([
    Sketcher.Constraint("Coincident", 0, 2, 1, 1),
    Sketcher.Constraint("Coincident", 1, 2, 2, 1),
    Sketcher.Constraint("Tangent", 2, 2, 3, 2),
    Sketcher.Constraint("Coincident", 3, 1, 0, 1),
    Sketcher.Constraint("Horizontal", 0),
    Sketcher.Constraint("Horizontal", 2),
    Sketcher.Constraint("Coincident", 2, 2, -1, 1),
    Sketcher.Constraint("DistanceX", 2, 1, 2, 2, 13.0),
    Sketcher.Constraint("Radius", 3, 14.25),
    Sketcher.Constraint("DistanceY", -1, 1, 0, 2, 5.0),
    Sketcher.Constraint("DistanceX", 0, 2, 0, 1, 1.809381),
])
pad7 = body.newObject("PartDesign::Pad", "Pad006")
pad7.Profile = sketch22
pad7.Length = 5

# Sketch on XY plane
sketch23 = body.newObject("Sketcher::SketchObject", "Sketch022")
sketch23.AttachmentSupport = (doc.getObject("XY_Plane"), [""])
sketch23.MapMode = "FlatFace"
sketch23.AttachmentOffset = App.Placement(V(0, 0, 1.5), App.Rotation())
sketch23.addGeometry([
    Part.LineSegment(V(0, 0, 0), V(13, 0, 0)),
    Part.LineSegment(V(13, 0, 0), V(12.649123, 5, 0)),
    Part.LineSegment(V(12.649123, 5, 0), V(10.839742, 5, 0)),
    Part.ArcOfCircle(Part.Circle(V(0, 14.25, 0), V(0, 0, 1), 14.25), math.radians(-90), math.radians(-40.475498)),
], False)
sketch23.addConstraint([
    Sketcher.Constraint("Coincident", 0, 2, 1, 1),
    Sketcher.Constraint("Coincident", 1, 2, 2, 1),
    Sketcher.Constraint("Coincident", 2, 2, 3, 2),
    Sketcher.Constraint("Tangent", 3, 1, 0, 1),
    Sketcher.Constraint("Horizontal", 0),
    Sketcher.Constraint("Horizontal", 2),
    Sketcher.Constraint("Coincident", 3, 1, -1, 1),
    Sketcher.Constraint("DistanceX", 0, 1, 0, 2, 13.0),
    Sketcher.Constraint("Radius", 3, 14.25),
    Sketcher.Constraint("DistanceY", -1, 1, 1, 2, 5.0),
    Sketcher.Constraint("DistanceX", 2, 2, 2, 1, 1.809381),
])
pad8 = body.newObject("PartDesign::Pad", "Pad007")
pad8.Profile = sketch23
pad8.Length = 5

# Sketch on XY plane
sketch24 = body.newObject("Sketcher::SketchObject", "Sketch023")
sketch24.AttachmentSupport = (doc.getObject("XY_Plane"), [""])
sketch24.MapMode = "FlatFace"
sketch24.AttachmentOffset = App.Placement(V(0, 0, 5), App.Rotation())
sketch24.addGeometry([
    Part.ArcOfCircle(Part.Circle(V(0, 14.25, 0), V(0, 0, 1), 14.25), math.radians(180), math.radians(220.475498)),
    Part.LineSegment(V(-14.25, 14.25, 0), V(-14.25, 5, 0)),
    Part.LineSegment(V(-14.25, 5, 0), V(-10.839742, 5, 0)),
], False)
sketch24.addConstraint([
    Sketcher.Constraint("Tangent", 0, 1, 1, 1),
    Sketcher.Constraint("Coincident", 1, 2, 2, 1),
    Sketcher.Constraint("Coincident", 2, 2, 0, 2),
    Sketcher.Constraint("Vertical", 1),
    Sketcher.Constraint("Horizontal", 2),
    Sketcher.Constraint("PointOnObject", 0, 3, -2),
    Sketcher.Constraint("Radius", 0, 14.25),
    Sketcher.Constraint("DistanceY", -1, 1, 1, 2, 5.0),
    Sketcher.Constraint("DistanceY", 1, 2, 1, 1, 9.25),
])
pad9 = body.newObject("PartDesign::Pad", "Pad008")
pad9.Profile = sketch24
pad9.Length = 1.5

# Sketch on XY plane
sketch25 = body.newObject("Sketcher::SketchObject", "Sketch024")
sketch25.AttachmentSupport = (doc.getObject("XY_Plane"), [""])
sketch25.MapMode = "FlatFace"
sketch25.AttachmentOffset = App.Placement(V(0, 0, 5), App.Rotation())
sketch25.addGeometry([
    Part.ArcOfCircle(Part.Circle(V(0, 14.25, 0), V(0, 0, 1), 14.25), math.radians(-40.475498), math.radians(0)),
    Part.LineSegment(V(10.839742, 5, 0), V(14.25, 5, 0)),
    Part.LineSegment(V(14.25, 5, 0), V(14.25, 14.25, 0)),
], False)
sketch25.addConstraint([
    Sketcher.Constraint("Coincident", 0, 1, 1, 1),
    Sketcher.Constraint("Coincident", 1, 2, 2, 1),
    Sketcher.Constraint("Tangent", 2, 2, 0, 2),
    Sketcher.Constraint("Horizontal", 1),
    Sketcher.Constraint("Vertical", 2),
    Sketcher.Constraint("PointOnObject", 0, 3, -2),
    Sketcher.Constraint("Radius", 0, 14.25),
    Sketcher.Constraint("DistanceY", -1, 1, 0, 1, 5.0),
    Sketcher.Constraint("DistanceY", 2, 1, 2, 2, 9.25),
])
pad10 = body.newObject("PartDesign::Pad", "Pad009")
pad10.Profile = sketch25
pad10.Length = 1.5

# Sketch on XY plane
sketch26 = body.newObject("Sketcher::SketchObject", "Sketch025")
sketch26.AttachmentSupport = (doc.getObject("XY_Plane"), [""])
sketch26.MapMode = "FlatFace"
sketch26.AttachmentOffset = App.Placement(V(0, 0, 6.5), App.Rotation())
sketch26.addGeometry([
    Part.Circle(V(0, 14.25, 0), V(0, 0, 1), 11.125),
    Part.Circle(V(0, 14.25, 0), V(0, 0, 1), 11),
], False)
sketch26.addConstraint([
    Sketcher.Constraint("Coincident", 1, 3, 0, 3),
    Sketcher.Constraint("PointOnObject", 0, 3, -2),
    Sketcher.Constraint("Diameter", 1, 22.0),
    Sketcher.Constraint("Diameter", 0, 22.25),
    Sketcher.Constraint("DistanceY", -1, 1, 0, 3, 14.25),
])
pad11 = body.newObject("PartDesign::Pad", "Pad010")
pad11.Profile = sketch26
pad11.Length = 10
pad11.Reversed = True

# Sketch on XY plane
sketch27 = body.newObject("Sketcher::SketchObject", "Sketch026")
sketch27.AttachmentSupport = (doc.getObject("XY_Plane"), [""])
sketch27.MapMode = "FlatFace"
sketch27.AttachmentOffset = App.Placement(V(0, 0, -3.5), App.Rotation())
sketch27.addGeometry(Part.Circle(V(0, 14.25, 0), V(0, 0, 1), 11.125), False)
sketch27.addConstraint([
    Sketcher.Constraint("PointOnObject", 0, 3, -2),
    Sketcher.Constraint("Diameter", 0, 22.25),
    Sketcher.Constraint("DistanceY", -1, 1, 0, 3, 14.25),
])
pocket16 = body.newObject("PartDesign::Pocket", "Pocket015")
pocket16.Profile = sketch27
pocket16.Length = 7
pocket16.Reversed = True

# Sketch on XY plane
sketch28 = body.newObject("Sketcher::SketchObject", "Sketch027")
sketch28.AttachmentSupport = (doc.getObject("XY_Plane"), [""])
sketch28.MapMode = "FlatFace"
sketch28.AttachmentOffset = App.Placement(V(0, 0, -3.5), App.Rotation())
sketch28.addGeometry(Part.Circle(V(0, 14.25, 0), V(0, 0, 1), 11.25), False)
sketch28.addConstraint([
    Sketcher.Constraint("PointOnObject", 0, 3, -2),
    Sketcher.Constraint("Diameter", 0, 22.5),
    Sketcher.Constraint("DistanceY", -1, 1, 0, 3, 14.25),
])
pocket17 = body.newObject("PartDesign::Pocket", "Pocket016")
pocket17.Profile = sketch28
pocket17.Length = 7
pocket17.Reversed = True

doc.recompute()
